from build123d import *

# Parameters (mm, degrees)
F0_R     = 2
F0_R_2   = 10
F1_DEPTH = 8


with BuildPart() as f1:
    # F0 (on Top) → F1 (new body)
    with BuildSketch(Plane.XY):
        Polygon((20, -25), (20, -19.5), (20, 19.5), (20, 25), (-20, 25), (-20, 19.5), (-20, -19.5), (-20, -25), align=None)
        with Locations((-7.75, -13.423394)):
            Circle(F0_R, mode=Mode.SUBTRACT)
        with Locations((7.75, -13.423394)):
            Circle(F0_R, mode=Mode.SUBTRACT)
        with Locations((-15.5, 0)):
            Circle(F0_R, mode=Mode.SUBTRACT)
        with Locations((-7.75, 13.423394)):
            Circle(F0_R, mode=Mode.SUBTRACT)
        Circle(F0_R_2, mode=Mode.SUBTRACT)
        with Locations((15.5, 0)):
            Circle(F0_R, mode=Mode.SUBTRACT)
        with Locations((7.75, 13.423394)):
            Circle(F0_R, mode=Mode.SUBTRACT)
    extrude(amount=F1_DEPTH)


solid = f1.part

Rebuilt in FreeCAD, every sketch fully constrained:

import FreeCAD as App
import Part
import Sketcher

V = App.Vector

doc = App.newDocument("Part")
params = doc.addObject("Spreadsheet::Sheet", "Params")
for row, (alias, value) in enumerate([
    ("sketch1_diameter", "4 mm"),
    ("sketch1_diameter2", "20 mm"),
    ("sketch1_width", "40 mm"),
    ("sketch1_height", "50 mm"),
    ("pad1_length", "8 mm"),
], start=1):
    params.set(f"A{row}", alias)
    params.set(f"B{row}", "=" + value)
    params.setAlias(f"B{row}", alias)

body = doc.addObject("PartDesign::Body", "Body")

# Sketch on XY plane
sketch1 = body.newObject("Sketcher::SketchObject", "Sketch")
sketch1.AttachmentSupport = (doc.getObject("XY_Plane"), [""])
sketch1.MapMode = "FlatFace"
sketch1.addGeometry([
    Part.LineSegment(V(20, -25, 0), V(20, 25, 0)),  # 0
    Part.LineSegment(V(20, 25, 0), V(-20, 25, 0)),  # 1
    Part.LineSegment(V(-20, 25, 0), V(-20, -25, 0)),  # 2
    Part.LineSegment(V(-20, -25, 0), V(20, -25, 0)),  # 3
    Part.Circle(V(-7.8, -13.4, 0), V(0, 0, 1), 2),  # 4
    Part.Circle(V(-15.5, 0, 0), V(0, 0, 1), 2),  # 5
    Part.Circle(V(7.8, -13.4, 0), V(0, 0, 1), 2),  # 6
    Part.Circle(V(0, 0, 0), V(0, 0, 1), 10),  # 7
    Part.Circle(V(15.5, 0, 0), V(0, 0, 1), 2),  # 8
    Part.Circle(V(-7.8, 13.4, 0), V(0, 0, 1), 2),  # 9
    Part.Circle(V(7.8, 13.4, 0), V(0, 0, 1), 2),  # 10
], False)
sketch1.addConstraint([
    Sketcher.Constraint("Coincident", 0, 2, 1, 1),
    Sketcher.Constraint("Coincident", 1, 2, 2, 1),
    Sketcher.Constraint("Coincident", 2, 2, 3, 1),
    Sketcher.Constraint("Coincident", 3, 2, 0, 1),
    Sketcher.Constraint("Vertical", 0),
    Sketcher.Constraint("Horizontal", 1),
    Sketcher.Constraint("Vertical", 2),
    Sketcher.Constraint("Horizontal", 3),
    Sketcher.Constraint("Coincident", 7, 3, -1, 1),
    Sketcher.Constraint("Equal", 4, 5),
    Sketcher.Constraint("Equal", 5, 6),
    Sketcher.Constraint("Equal", 6, 8),
    Sketcher.Constraint("Equal", 8, 9),
    Sketcher.Constraint("Equal", 9, 10),
    Sketcher.Constraint("Symmetric", 5, 3, 8, 3, -1, 1),
    Sketcher.Constraint("Symmetric", 6, 3, 9, 3, -1, 1),
    Sketcher.Constraint("Symmetric", 4, 3, 10, 3, -1, 1),
    Sketcher.Constraint("Symmetric", 0, 2, 2, 2, -1, 1),
    Sketcher.Constraint("Symmetric", 4, 3, 6, 3, -2),
    Sketcher.Constraint("PointOnObject", 5, 3, -1),
    Sketcher.Constraint("Diameter", 4, 4.0),
    Sketcher.Constraint("Diameter", 7, 20.0),
    Sketcher.Constraint("DistanceX", 1, 2, 1, 1, 40.0),
    Sketcher.Constraint("DistanceY", 0, 1, 0, 2, 50.0),
    Sketcher.Constraint("DistanceX", 5, 3, 8, 3, 31.0),
    Sketcher.Constraint("DistanceX", 4, 3, 6, 3, 15.5),
    Sketcher.Constraint("DistanceY", 4, 3, 9, 3, 26.846788),
])
sketch1.setExpression("Constraints[20]", "Params.sketch1_diameter")
sketch1.setExpression("Constraints[21]", "Params.sketch1_diameter2")
sketch1.setExpression("Constraints[22]", "Params.sketch1_width")
sketch1.setExpression("Constraints[23]", "Params.sketch1_height")
pad1 = body.newObject("PartDesign::Pad", "Pad")
pad1.Profile = sketch1
pad1.setExpression("Length", "Params.pad1_length")

doc.recompute()
